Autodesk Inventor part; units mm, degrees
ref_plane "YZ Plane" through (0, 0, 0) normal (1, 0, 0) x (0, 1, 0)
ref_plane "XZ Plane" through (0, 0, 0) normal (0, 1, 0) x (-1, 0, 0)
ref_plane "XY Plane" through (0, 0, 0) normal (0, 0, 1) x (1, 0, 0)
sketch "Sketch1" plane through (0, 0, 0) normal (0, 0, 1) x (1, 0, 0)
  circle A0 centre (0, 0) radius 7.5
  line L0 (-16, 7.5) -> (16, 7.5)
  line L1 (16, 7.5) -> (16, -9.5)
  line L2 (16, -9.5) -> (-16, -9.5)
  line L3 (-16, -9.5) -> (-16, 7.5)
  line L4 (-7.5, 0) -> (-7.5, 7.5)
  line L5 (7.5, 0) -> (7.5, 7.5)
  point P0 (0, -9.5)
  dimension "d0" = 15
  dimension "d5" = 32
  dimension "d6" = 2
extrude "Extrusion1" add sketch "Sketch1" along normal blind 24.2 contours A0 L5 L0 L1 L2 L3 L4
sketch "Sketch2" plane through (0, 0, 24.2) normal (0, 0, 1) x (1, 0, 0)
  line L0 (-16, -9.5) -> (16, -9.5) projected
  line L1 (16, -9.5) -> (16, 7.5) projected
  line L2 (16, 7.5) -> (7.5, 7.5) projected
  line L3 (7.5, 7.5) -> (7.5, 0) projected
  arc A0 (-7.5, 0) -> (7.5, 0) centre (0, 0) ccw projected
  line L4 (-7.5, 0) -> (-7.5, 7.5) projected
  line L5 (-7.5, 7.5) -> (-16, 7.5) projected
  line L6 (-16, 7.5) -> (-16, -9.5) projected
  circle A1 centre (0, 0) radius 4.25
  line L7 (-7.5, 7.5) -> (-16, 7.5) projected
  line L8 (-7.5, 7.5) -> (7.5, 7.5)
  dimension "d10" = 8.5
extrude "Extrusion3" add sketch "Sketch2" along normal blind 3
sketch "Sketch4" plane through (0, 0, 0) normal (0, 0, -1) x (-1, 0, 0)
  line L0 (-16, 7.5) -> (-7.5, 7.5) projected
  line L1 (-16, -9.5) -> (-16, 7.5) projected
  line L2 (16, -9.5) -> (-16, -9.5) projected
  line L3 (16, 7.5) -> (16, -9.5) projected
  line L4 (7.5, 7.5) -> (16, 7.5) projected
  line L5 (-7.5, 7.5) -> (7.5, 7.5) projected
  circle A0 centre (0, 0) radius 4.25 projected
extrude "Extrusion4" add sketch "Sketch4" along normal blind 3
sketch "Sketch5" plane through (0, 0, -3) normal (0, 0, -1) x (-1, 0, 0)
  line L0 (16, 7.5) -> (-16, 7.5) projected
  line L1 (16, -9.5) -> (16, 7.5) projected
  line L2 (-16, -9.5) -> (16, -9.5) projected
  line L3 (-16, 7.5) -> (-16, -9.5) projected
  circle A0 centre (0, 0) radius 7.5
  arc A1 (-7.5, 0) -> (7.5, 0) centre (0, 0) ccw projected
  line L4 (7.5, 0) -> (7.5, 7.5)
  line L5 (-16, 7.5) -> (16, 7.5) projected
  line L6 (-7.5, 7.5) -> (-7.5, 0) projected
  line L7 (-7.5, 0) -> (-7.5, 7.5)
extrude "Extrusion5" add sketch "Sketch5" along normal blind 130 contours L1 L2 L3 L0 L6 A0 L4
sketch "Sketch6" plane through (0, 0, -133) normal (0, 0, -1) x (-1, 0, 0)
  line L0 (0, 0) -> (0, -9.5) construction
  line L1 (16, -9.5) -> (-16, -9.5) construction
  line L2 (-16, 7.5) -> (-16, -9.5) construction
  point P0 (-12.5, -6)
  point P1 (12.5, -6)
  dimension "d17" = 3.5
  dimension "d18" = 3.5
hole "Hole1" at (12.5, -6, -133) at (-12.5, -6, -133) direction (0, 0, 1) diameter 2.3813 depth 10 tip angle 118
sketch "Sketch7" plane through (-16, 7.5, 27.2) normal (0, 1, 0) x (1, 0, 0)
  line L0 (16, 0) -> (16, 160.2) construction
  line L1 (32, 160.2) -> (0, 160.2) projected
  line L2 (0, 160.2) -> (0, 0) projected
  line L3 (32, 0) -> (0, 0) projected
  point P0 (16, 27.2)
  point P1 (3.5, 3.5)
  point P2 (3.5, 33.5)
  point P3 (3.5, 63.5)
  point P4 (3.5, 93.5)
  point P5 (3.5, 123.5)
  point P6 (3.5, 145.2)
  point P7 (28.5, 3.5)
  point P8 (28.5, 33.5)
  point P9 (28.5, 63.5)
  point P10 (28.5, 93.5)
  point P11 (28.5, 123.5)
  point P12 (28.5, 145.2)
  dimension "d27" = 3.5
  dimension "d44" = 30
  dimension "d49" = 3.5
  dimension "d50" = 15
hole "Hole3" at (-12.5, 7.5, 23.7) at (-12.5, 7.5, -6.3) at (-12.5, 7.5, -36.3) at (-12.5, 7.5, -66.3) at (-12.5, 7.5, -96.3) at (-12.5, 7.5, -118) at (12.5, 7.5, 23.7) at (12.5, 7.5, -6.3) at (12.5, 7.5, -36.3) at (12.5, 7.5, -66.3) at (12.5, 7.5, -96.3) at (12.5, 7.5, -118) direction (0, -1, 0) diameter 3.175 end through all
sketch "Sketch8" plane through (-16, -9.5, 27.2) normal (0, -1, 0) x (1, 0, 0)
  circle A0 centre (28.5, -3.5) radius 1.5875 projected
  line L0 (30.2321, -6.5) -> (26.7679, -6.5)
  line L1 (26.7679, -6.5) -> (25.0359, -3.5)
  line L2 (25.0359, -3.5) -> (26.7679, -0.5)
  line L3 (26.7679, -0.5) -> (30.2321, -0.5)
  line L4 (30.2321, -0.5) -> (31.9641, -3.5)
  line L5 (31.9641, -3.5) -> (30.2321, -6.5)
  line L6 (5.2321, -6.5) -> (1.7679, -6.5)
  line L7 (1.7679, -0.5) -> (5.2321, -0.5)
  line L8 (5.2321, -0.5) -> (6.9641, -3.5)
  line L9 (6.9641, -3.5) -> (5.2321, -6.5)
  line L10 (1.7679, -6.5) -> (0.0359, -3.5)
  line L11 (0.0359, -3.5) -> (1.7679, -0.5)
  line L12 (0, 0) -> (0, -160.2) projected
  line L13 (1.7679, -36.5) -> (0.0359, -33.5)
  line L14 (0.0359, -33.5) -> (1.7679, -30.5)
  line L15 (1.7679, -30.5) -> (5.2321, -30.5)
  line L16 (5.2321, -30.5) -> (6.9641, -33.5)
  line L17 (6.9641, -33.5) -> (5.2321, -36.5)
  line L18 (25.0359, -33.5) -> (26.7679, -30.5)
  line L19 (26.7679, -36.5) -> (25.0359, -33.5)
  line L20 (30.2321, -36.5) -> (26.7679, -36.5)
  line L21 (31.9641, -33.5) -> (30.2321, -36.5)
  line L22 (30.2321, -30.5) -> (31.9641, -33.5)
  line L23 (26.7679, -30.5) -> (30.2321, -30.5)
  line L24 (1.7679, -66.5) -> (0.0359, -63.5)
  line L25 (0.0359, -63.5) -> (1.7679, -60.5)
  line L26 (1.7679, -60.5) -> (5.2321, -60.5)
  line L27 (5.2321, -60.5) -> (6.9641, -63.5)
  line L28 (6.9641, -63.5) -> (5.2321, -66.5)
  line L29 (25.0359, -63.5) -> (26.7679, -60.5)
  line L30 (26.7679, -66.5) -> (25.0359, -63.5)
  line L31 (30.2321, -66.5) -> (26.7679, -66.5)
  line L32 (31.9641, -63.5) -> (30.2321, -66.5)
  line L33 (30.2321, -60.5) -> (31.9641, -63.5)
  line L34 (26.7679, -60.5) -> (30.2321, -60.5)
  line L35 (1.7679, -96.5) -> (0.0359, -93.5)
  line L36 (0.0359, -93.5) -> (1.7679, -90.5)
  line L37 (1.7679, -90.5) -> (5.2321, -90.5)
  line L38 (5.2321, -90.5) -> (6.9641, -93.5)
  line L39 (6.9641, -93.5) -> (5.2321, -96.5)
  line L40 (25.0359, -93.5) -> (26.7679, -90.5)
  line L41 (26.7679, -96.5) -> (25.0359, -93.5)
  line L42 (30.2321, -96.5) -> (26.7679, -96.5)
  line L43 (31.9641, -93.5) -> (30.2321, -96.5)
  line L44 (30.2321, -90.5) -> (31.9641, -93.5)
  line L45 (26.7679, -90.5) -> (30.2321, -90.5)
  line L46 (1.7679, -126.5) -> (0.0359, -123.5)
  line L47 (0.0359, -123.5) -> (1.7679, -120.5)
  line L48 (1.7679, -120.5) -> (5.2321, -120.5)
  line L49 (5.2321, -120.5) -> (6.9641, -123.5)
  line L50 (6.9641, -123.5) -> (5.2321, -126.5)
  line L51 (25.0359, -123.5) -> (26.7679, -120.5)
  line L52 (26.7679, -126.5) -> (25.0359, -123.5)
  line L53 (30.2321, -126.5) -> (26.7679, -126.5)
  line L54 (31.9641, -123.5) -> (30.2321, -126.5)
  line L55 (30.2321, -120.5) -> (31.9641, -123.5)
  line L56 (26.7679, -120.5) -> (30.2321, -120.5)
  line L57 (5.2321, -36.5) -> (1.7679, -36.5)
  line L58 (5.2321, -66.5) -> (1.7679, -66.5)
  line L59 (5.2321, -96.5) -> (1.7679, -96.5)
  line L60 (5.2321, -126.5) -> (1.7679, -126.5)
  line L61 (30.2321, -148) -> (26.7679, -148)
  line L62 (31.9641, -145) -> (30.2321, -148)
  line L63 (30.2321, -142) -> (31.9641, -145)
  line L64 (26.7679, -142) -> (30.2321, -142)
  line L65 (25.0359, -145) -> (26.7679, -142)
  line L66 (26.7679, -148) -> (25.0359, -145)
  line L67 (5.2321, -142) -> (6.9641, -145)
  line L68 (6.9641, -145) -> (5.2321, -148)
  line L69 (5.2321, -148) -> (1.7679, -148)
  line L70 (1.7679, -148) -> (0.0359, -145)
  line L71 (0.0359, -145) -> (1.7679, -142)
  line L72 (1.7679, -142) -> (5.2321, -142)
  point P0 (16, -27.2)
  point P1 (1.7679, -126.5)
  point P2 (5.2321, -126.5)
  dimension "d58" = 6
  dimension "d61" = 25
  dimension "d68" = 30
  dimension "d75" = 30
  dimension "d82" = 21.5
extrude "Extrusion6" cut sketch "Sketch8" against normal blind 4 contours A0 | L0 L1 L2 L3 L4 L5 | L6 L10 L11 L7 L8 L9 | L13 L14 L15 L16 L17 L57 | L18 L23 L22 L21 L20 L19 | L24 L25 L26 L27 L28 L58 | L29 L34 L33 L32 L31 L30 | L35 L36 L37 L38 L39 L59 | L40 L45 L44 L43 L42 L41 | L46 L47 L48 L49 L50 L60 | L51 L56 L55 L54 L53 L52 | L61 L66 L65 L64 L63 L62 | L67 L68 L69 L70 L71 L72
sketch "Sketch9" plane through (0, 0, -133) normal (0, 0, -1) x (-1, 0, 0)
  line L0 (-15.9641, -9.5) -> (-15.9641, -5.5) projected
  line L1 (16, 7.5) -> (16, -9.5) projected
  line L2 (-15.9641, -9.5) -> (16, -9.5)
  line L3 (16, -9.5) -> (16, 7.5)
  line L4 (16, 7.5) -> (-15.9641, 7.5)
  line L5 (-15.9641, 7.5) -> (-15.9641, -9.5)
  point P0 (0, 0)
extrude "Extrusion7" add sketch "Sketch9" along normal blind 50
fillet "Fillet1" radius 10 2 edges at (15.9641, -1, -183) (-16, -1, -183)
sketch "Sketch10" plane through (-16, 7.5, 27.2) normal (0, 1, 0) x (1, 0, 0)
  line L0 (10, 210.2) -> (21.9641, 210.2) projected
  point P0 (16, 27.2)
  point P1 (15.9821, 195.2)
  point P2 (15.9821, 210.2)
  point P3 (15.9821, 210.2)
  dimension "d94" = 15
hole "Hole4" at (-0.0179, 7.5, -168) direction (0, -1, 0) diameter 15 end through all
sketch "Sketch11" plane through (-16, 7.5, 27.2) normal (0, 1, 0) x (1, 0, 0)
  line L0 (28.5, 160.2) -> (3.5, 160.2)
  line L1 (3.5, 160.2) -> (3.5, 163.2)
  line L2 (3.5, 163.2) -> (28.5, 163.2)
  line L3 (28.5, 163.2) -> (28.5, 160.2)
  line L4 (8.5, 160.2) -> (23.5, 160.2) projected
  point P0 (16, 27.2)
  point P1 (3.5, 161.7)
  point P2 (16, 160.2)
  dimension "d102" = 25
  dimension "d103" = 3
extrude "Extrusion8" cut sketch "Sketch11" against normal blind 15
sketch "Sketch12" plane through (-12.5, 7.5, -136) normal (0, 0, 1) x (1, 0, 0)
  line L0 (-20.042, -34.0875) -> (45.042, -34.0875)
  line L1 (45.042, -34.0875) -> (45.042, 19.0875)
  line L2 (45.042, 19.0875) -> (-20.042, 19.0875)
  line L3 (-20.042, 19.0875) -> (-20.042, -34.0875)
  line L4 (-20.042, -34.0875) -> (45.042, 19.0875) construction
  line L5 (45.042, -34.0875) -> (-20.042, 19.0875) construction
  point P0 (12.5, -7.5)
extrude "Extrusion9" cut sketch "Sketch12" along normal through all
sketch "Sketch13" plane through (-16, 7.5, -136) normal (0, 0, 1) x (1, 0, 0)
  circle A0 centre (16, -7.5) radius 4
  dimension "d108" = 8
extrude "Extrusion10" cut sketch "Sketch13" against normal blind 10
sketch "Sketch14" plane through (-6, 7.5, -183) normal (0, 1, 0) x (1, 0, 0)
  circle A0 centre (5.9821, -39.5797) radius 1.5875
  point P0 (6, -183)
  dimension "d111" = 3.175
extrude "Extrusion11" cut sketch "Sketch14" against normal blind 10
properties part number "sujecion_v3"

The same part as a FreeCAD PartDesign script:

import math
import FreeCAD as App
import Part
import Sketcher

V = App.Vector
Q = App.Units.Quantity


def edges_at(feature, points):
    """Names of the edges that pass closest to the given points."""
    edges = feature.Shape.Edges
    near = lambda p: min(range(len(edges)), key=lambda i: edges[i].distToShape(Part.Vertex(*p))[0])
    return sorted({f"Edge{near(p) + 1}" for p in points})

doc = App.newDocument("Part")
body = doc.addObject("PartDesign::Body", "Body")

sketch1 = doc.addObject("Sketcher::SketchObject", "Sketch")
body.addObject(sketch1)
sketch1.AttachmentSupport = (doc.XY_Plane, [""])
sketch1.MapMode = "FlatFace"
sketch1.addGeometry([
    Part.ArcOfCircle(Part.Circle(V(0, 0, 0), V(0, 0, 1), 7.5), math.radians(180), math.radians(360)),
    Part.LineSegment(V(-7.5, 0, 0), V(-7.5, 7.5, 0)),
    Part.LineSegment(V(-7.5, 7.5, 0), V(-16, 7.5, 0)),
    Part.LineSegment(V(-16, 7.5, 0), V(-16, -9.5, 0)),
    Part.LineSegment(V(-16, -9.5, 0), V(16, -9.5, 0)),
    Part.LineSegment(V(16, -9.5, 0), V(16, 7.5, 0)),
    Part.LineSegment(V(16, 7.5, 0), V(7.5, 7.5, 0)),
    Part.LineSegment(V(7.5, 7.5, 0), V(7.5, 0, 0)),
], False)
sketch1.addConstraint([
    Sketcher.Constraint("Tangent", 0, 1, 1, 1),
    Sketcher.Constraint("Coincident", 1, 2, 2, 1),
    Sketcher.Constraint("Coincident", 2, 2, 3, 1),
    Sketcher.Constraint("Coincident", 3, 2, 4, 1),
    Sketcher.Constraint("Coincident", 4, 2, 5, 1),
    Sketcher.Constraint("Coincident", 5, 2, 6, 1),
    Sketcher.Constraint("Coincident", 6, 2, 7, 1),
    Sketcher.Constraint("Tangent", 7, 2, 0, 2),
    Sketcher.Constraint("Vertical", 1),
    Sketcher.Constraint("Horizontal", 2),
    Sketcher.Constraint("Vertical", 3),
    Sketcher.Constraint("Horizontal", 4),
    Sketcher.Constraint("Vertical", 5),
    Sketcher.Constraint("Horizontal", 6),
    Sketcher.Constraint("Vertical", 7),
    Sketcher.Constraint("Coincident", 0, 3, -1, 1),
    Sketcher.Constraint("Symmetric", 2, 2, 5, 2, -2),
    Sketcher.Constraint("Radius", 0, 7.5),
    Sketcher.Constraint("DistanceX", 4, 1, 4, 2, 32.0),
    Sketcher.Constraint("DistanceY", 3, 2, 3, 1, 17.0),
    Sketcher.Constraint("DistanceY", 1, 1, 1, 2, 7.5),
])
pad1 = doc.addObject("PartDesign::Pad", "Pad")
body.addObject(pad1)
pad1.Profile = sketch1
pad1.Length = 24.2

sketch2 = doc.addObject("Sketcher::SketchObject", "Sketch001")
body.addObject(sketch2)
sketch2.AttachmentSupport = (doc.XY_Plane, [""])
sketch2.MapMode = "FlatFace"
sketch2.AttachmentOffset = App.Placement(V(0, 0, 24.2), App.Rotation())
sketch2.addGeometry([
    Part.LineSegment(V(-16, 7.5, 0), V(-16, -9.5, 0)),
    Part.LineSegment(V(-16, -9.5, 0), V(16, -9.5, 0)),
    Part.LineSegment(V(16, -9.5, 0), V(16, 7.5, 0)),
    Part.LineSegment(V(16, 7.5, 0), V(-16, 7.5, 0)),
    Part.Circle(V(0, 0, 0), V(0, 0, 1), 4.25),
], False)
sketch2.addConstraint([
    Sketcher.Constraint("Coincident", 0, 2, 1, 1),
    Sketcher.Constraint("Coincident", 1, 2, 2, 1),
    Sketcher.Constraint("Coincident", 2, 2, 3, 1),
    Sketcher.Constraint("Coincident", 3, 2, 0, 1),
    Sketcher.Constraint("Vertical", 0),
    Sketcher.Constraint("Horizontal", 1),
    Sketcher.Constraint("Vertical", 2),
    Sketcher.Constraint("Horizontal", 3),
    Sketcher.Constraint("Coincident", 4, 3, -1, 1),
    Sketcher.Constraint("Diameter", 4, 8.5),
    Sketcher.Constraint("DistanceX", 1, 1, 1, 2, 32.0),
    Sketcher.Constraint("DistanceY", 0, 2, 0, 1, 17.0),
    Sketcher.Constraint("DistanceX", 0, 2, -1, 1, 16.0),
    Sketcher.Constraint("DistanceY", 0, 2, -1, 1, 9.5),
])
pad2 = doc.addObject("PartDesign::Pad", "Pad001")
body.addObject(pad2)
pad2.Profile = sketch2
pad2.Length = 3

sketch3 = doc.addObject("Sketcher::SketchObject", "Sketch002")
body.addObject(sketch3)
sketch3.AttachmentSupport = (doc.XY_Plane, [""])
sketch3.MapMode = "FlatFace"
sketch3.addGeometry([
    Part.LineSegment(V(-16, 7.5, 0), V(16, 7.5, 0)),
    Part.LineSegment(V(16, 7.5, 0), V(16, -9.5, 0)),
    Part.LineSegment(V(16, -9.5, 0), V(-16, -9.5, 0)),
    Part.LineSegment(V(-16, -9.5, 0), V(-16, 7.5, 0)),
    Part.Circle(V(0, 0, 0), V(0, 0, 1), 4.25),
], False)
sketch3.addConstraint([
    Sketcher.Constraint("Coincident", 0, 2, 1, 1),
    Sketcher.Constraint("Coincident", 1, 2, 2, 1),
    Sketcher.Constraint("Coincident", 2, 2, 3, 1),
    Sketcher.Constraint("Coincident", 3, 2, 0, 1),
    Sketcher.Constraint("Horizontal", 0),
    Sketcher.Constraint("Vertical", 1),
    Sketcher.Constraint("Horizontal", 2),
    Sketcher.Constraint("Vertical", 3),
    Sketcher.Constraint("Coincident", 4, 3, -1, 1),
    Sketcher.Constraint("Diameter", 4, 8.5),
    Sketcher.Constraint("DistanceX", 0, 1, 0, 2, 32.0),
    Sketcher.Constraint("DistanceY", 1, 2, 1, 1, 17.0),
    Sketcher.Constraint("DistanceX", -1, 1, 0, 2, 16.0),
    Sketcher.Constraint("DistanceY", -1, 1, 0, 2, 7.5),
])
pad3 = doc.addObject("PartDesign::Pad", "Pad002")
body.addObject(pad3)
pad3.Profile = sketch3
pad3.Length = 3
pad3.Reversed = True

sketch4 = doc.addObject("Sketcher::SketchObject", "Sketch003")
body.addObject(sketch4)
sketch4.AttachmentSupport = (doc.XY_Plane, [""])
sketch4.MapMode = "FlatFace"
sketch4.AttachmentOffset = App.Placement(V(0, 0, -3), App.Rotation())
sketch4.addGeometry([
    Part.LineSegment(V(-16, -9.5, 0), V(-16, 7.5, 0)),
    Part.LineSegment(V(-16, 7.5, 0), V(-7.5, 7.5, 0)),
    Part.LineSegment(V(-7.5, 7.5, 0), V(-7.5, 0, 0)),
    Part.ArcOfCircle(Part.Circle(V(0, 0, 0), V(0, 0, 1), 7.5), math.radians(180), math.radians(360)),
    Part.LineSegment(V(7.5, 0, 0), V(7.5, 7.5, 0)),
    Part.LineSegment(V(7.5, 7.5, 0), V(16, 7.5, 0)),
    Part.LineSegment(V(16, 7.5, 0), V(16, -9.5, 0)),
    Part.LineSegment(V(16, -9.5, 0), V(-16, -9.5, 0)),
], False)
sketch4.addConstraint([
    Sketcher.Constraint("Coincident", 0, 2, 1, 1),
    Sketcher.Constraint("Coincident", 1, 2, 2, 1),
    Sketcher.Constraint("Tangent", 2, 2, 3, 1),
    Sketcher.Constraint("Tangent", 3, 2, 4, 1),
    Sketcher.Constraint("Coincident", 4, 2, 5, 1),
    Sketcher.Constraint("Coincident", 5, 2, 6, 1),
    Sketcher.Constraint("Coincident", 6, 2, 7, 1),
    Sketcher.Constraint("Coincident", 7, 2, 0, 1),
    Sketcher.Constraint("Vertical", 0),
    Sketcher.Constraint("Horizontal", 1),
    Sketcher.Constraint("Vertical", 2),
    Sketcher.Constraint("Vertical", 4),
    Sketcher.Constraint("Horizontal", 5),
    Sketcher.Constraint("Vertical", 6),
    Sketcher.Constraint("Horizontal", 7),
    Sketcher.Constraint("Coincident", 3, 3, -1, 1),
    Sketcher.Constraint("Symmetric", 0, 2, 5, 2, -2),
    Sketcher.Constraint("Radius", 3, 7.5),
    Sketcher.Constraint("DistanceX", 7, 2, 7, 1, 32.0),
    Sketcher.Constraint("DistanceY", 0, 1, 0, 2, 17.0),
    Sketcher.Constraint("DistanceY", 2, 2, 2, 1, 7.5),
])
pad4 = doc.addObject("PartDesign::Pad", "Pad003")
body.addObject(pad4)
pad4.Profile = sketch4
pad4.Length = 130
pad4.Reversed = True

sketch5 = doc.addObject("Sketcher::SketchObject", "Sketch004")
body.addObject(sketch5)
sketch5.AttachmentSupport = (doc.XY_Plane, [""])
sketch5.MapMode = "FlatFace"
sketch5.AttachmentOffset = App.Placement(V(0, 0, -133), App.Rotation())
sketch5.addGeometry([
    Part.Circle(V(12.5, -6, 0), V(0, 0, 1), 1.19065),
    Part.Circle(V(-12.5, -6, 0), V(0, 0, 1), 1.19065),
], False)
sketch5.addConstraint([
    Sketcher.Constraint("Equal", 0, 1),
    Sketcher.Constraint("Symmetric", 0, 3, 1, 3, -2),
    Sketcher.Constraint("DistanceY", 0, 3, -1, 1, 6.0),
    Sketcher.Constraint("DistanceX", 1, 3, 0, 3, 25.0),
    Sketcher.Constraint("Diameter", 0, 2.3813),
])
doc.recompute()
hole = doc.addObject("PartDesign::Hole", "Hole")
body.addObject(hole)
hole.Profile = sketch5
hole.ThreadType = "None"
hole.Diameter = 2.3813
hole.DepthType = "Dimension"
hole.Depth = 10
hole.DrillPoint = "Angled"
hole.DrillPointAngle = 118
hole.Reversed = True

sketch6 = doc.addObject("Sketcher::SketchObject", "Sketch005")
body.addObject(sketch6)
sketch6.AttachmentSupport = (doc.XZ_Plane, [""])
sketch6.MapMode = "FlatFace"
sketch6.AttachmentOffset = App.Placement(V(0, 0, -7.5), App.Rotation())
sketch6.addGeometry([
    Part.Circle(V(-12.5, 23.7, 0), V(0, 0, 1), 1.5875),
    Part.Circle(V(-12.5, -6.3, 0), V(0, 0, 1), 1.5875),
    Part.Circle(V(-12.5, -36.3, 0), V(0, 0, 1), 1.5875),
    Part.Circle(V(-12.5, -66.3, 0), V(0, 0, 1), 1.5875),
    Part.Circle(V(-12.5, -96.3, 0), V(0, 0, 1), 1.5875),
    Part.Circle(V(-12.5, -118, 0), V(0, 0, 1), 1.5875),
    Part.Circle(V(12.5, 23.7, 0), V(0, 0, 1), 1.5875),
    Part.Circle(V(12.5, -6.3, 0), V(0, 0, 1), 1.5875),
    Part.Circle(V(12.5, -36.3, 0), V(0, 0, 1), 1.5875),
    Part.Circle(V(12.5, -66.3, 0), V(0, 0, 1), 1.5875),
    Part.Circle(V(12.5, -96.3, 0), V(0, 0, 1), 1.5875),
    Part.Circle(V(12.5, -118, 0), V(0, 0, 1), 1.5875),
], False)
sketch6.addConstraint([
    Sketcher.Constraint("Equal", 0, 1),
    Sketcher.Constraint("Equal", 1, 2),
    Sketcher.Constraint("Equal", 2, 3),
    Sketcher.Constraint("Equal", 3, 4),
    Sketcher.Constraint("Equal", 4, 5),
    Sketcher.Constraint("Equal", 5, 6),
    Sketcher.Constraint("Equal", 6, 7),
    Sketcher.Constraint("Equal", 7, 8),
    Sketcher.Constraint("Equal", 8, 9),
    Sketcher.Constraint("Equal", 9, 10),
    Sketcher.Constraint("Equal", 10, 11),
    Sketcher.Constraint("Symmetric", 0, 3, 6, 3, -2),
    Sketcher.Constraint("Symmetric", 1, 3, 7, 3, -2),
    Sketcher.Constraint("Symmetric", 2, 3, 8, 3, -2),
    Sketcher.Constraint("Symmetric", 3, 3, 9, 3, -2),
    Sketcher.Constraint("Symmetric", 4, 3, 10, 3, -2),
    Sketcher.Constraint("Symmetric", 5, 3, 11, 3, -2),
    Sketcher.Constraint("Vertical", 0, 3, 1, 3),
    Sketcher.Constraint("Vertical", 1, 3, 2, 3),
    Sketcher.Constraint("Vertical", 2, 3, 3, 3),
    Sketcher.Constraint("Vertical", 3, 3, 4, 3),
    Sketcher.Constraint("Vertical", 4, 3, 5, 3),
    Sketcher.Constraint("Diameter", 0, 3.175),
    Sketcher.Constraint("DistanceY", 5, 3, -1, 1, 118.0),
    Sketcher.Constraint("DistanceY", 1, 3, 0, 3, 30.0),
    Sketcher.Constraint("DistanceY", 2, 3, 1, 3, 30.0),
    Sketcher.Constraint("DistanceY", 3, 3, 2, 3, 30.0),
    Sketcher.Constraint("DistanceY", 4, 3, 3, 3, 30.0),
    Sketcher.Constraint("DistanceX", 0, 3, 6, 3, 25.0),
    Sketcher.Constraint("DistanceY", -1, 1, 0, 3, 23.7),
])
doc.recompute()
hole2 = doc.addObject("PartDesign::Hole", "Hole001")
body.addObject(hole2)
hole2.Profile = sketch6
hole2.ThreadType = "None"
hole2.Diameter = 3.175
hole2.DepthType = "ThroughAll"
hole2.Reversed = True

sketch7 = doc.addObject("Sketcher::SketchObject", "Sketch006")
body.addObject(sketch7)
sketch7.AttachmentSupport = (doc.XZ_Plane, [""])
sketch7.MapMode = "FlatFace"
sketch7.AttachmentOffset = App.Placement(V(0, 0, 9.5), App.Rotation())
sketch7.addGeometry([
    Part.LineSegment(V(10.7679, 20.7, 0), V(14.2321, 20.7, 0)),
    Part.LineSegment(V(14.2321, 20.7, 0), V(15.9641, 23.7, 0)),
    Part.LineSegment(V(15.9641, 23.7, 0), V(14.2321, 26.7, 0)),
    Part.LineSegment(V(14.2321, 26.7, 0), V(10.7679, 26.7, 0)),
    Part.LineSegment(V(10.7679, 26.7, 0), V(9.0359, 23.7, 0)),
    Part.LineSegment(V(9.0359, 23.7, 0), V(10.7679, 20.7, 0)),
    Part.LineSegment(V(-14.2321, 20.7, 0), V(-10.7679, 20.7, 0)),
    Part.LineSegment(V(-10.7679, 20.7, 0), V(-9.0359, 23.7, 0)),
    Part.LineSegment(V(-9.0359, 23.7, 0), V(-10.7679, 26.7, 0)),
    Part.LineSegment(V(-10.7679, 26.7, 0), V(-14.2321, 26.7, 0)),
    Part.LineSegment(V(-14.2321, 26.7, 0), V(-15.9641, 23.7, 0)),
    Part.LineSegment(V(-15.9641, 23.7, 0), V(-14.2321, 20.7, 0)),
    Part.LineSegment(V(-15.9641, -6.3, 0), V(-14.2321, -9.3, 0)),
    Part.LineSegment(V(-14.2321, -9.3, 0), V(-10.7679, -9.3, 0)),
    Part.LineSegment(V(-10.7679, -9.3, 0), V(-9.0359, -6.3, 0)),
    Part.LineSegment(V(-9.0359, -6.3, 0), V(-10.7679, -3.3, 0)),
    Part.LineSegment(V(-10.7679, -3.3, 0), V(-14.2321, -3.3, 0)),
    Part.LineSegment(V(-14.2321, -3.3, 0), V(-15.9641, -6.3, 0)),
    Part.LineSegment(V(10.7679, -3.3, 0), V(9.0359, -6.3, 0)),
    Part.LineSegment(V(9.0359, -6.3, 0), V(10.7679, -9.3, 0)),
    Part.LineSegment(V(10.7679, -9.3, 0), V(14.2321, -9.3, 0)),
    Part.LineSegment(V(14.2321, -9.3, 0), V(15.9641, -6.3, 0)),
    Part.LineSegment(V(15.9641, -6.3, 0), V(14.2321, -3.3, 0)),
    Part.LineSegment(V(14.2321, -3.3, 0), V(10.7679, -3.3, 0)),
    Part.LineSegment(V(-15.9641, -36.3, 0), V(-14.2321, -39.3, 0)),
    Part.LineSegment(V(-14.2321, -39.3, 0), V(-10.7679, -39.3, 0)),
    Part.LineSegment(V(-10.7679, -39.3, 0), V(-9.0359, -36.3, 0)),
    Part.LineSegment(V(-9.0359, -36.3, 0), V(-10.7679, -33.3, 0)),
    Part.LineSegment(V(-10.7679, -33.3, 0), V(-14.2321, -33.3, 0)),
    Part.LineSegment(V(-14.2321, -33.3, 0), V(-15.9641, -36.3, 0)),
    Part.LineSegment(V(10.7679, -33.3, 0), V(9.0359, -36.3, 0)),
    Part.LineSegment(V(9.0359, -36.3, 0), V(10.7679, -39.3, 0)),
    Part.LineSegment(V(10.7679, -39.3, 0), V(14.2321, -39.3, 0)),
    Part.LineSegment(V(14.2321, -39.3, 0), V(15.9641, -36.3, 0)),
    Part.LineSegment(V(15.9641, -36.3, 0), V(14.2321, -33.3, 0)),
    Part.LineSegment(V(14.2321, -33.3, 0), V(10.7679, -33.3, 0)),
    Part.LineSegment(V(-15.9641, -66.3, 0), V(-14.2321, -69.3, 0)),
    Part.LineSegment(V(-14.2321, -69.3, 0), V(-10.7679, -69.3, 0)),
    Part.LineSegment(V(-10.7679, -69.3, 0), V(-9.0359, -66.3, 0)),
    Part.LineSegment(V(-9.0359, -66.3, 0), V(-10.7679, -63.3, 0)),
    Part.LineSegment(V(-10.7679, -63.3, 0), V(-14.2321, -63.3, 0)),
    Part.LineSegment(V(-14.2321, -63.3, 0), V(-15.9641, -66.3, 0)),
    Part.LineSegment(V(10.7679, -63.3, 0), V(9.0359, -66.3, 0)),
    Part.LineSegment(V(9.0359, -66.3, 0), V(10.7679, -69.3, 0)),
    Part.LineSegment(V(10.7679, -69.3, 0), V(14.2321, -69.3, 0)),
    Part.LineSegment(V(14.2321, -69.3, 0), V(15.9641, -66.3, 0)),
    Part.LineSegment(V(15.9641, -66.3, 0), V(14.2321, -63.3, 0)),
    Part.LineSegment(V(14.2321, -63.3, 0), V(10.7679, -63.3, 0)),
    Part.LineSegment(V(-15.9641, -96.3, 0), V(-14.2321, -99.3, 0)),
    Part.LineSegment(V(-14.2321, -99.3, 0), V(-10.7679, -99.3, 0)),
    Part.LineSegment(V(-10.7679, -99.3, 0), V(-9.0359, -96.3, 0)),
    Part.LineSegment(V(-9.0359, -96.3, 0), V(-10.7679, -93.3, 0)),
    Part.LineSegment(V(-10.7679, -93.3, 0), V(-14.2321, -93.3, 0)),
    Part.LineSegment(V(-14.2321, -93.3, 0), V(-15.9641, -96.3, 0)),
    Part.LineSegment(V(10.7679, -93.3, 0), V(9.0359, -96.3, 0)),
    Part.LineSegment(V(9.0359, -96.3, 0), V(10.7679, -99.3, 0)),
    Part.LineSegment(V(10.7679, -99.3, 0), V(14.2321, -99.3, 0)),
    Part.LineSegment(V(14.2321, -99.3, 0), V(15.9641, -96.3, 0)),
    Part.LineSegment(V(15.9641, -96.3, 0), V(14.2321, -93.3, 0)),
    Part.LineSegment(V(14.2321, -93.3, 0), V(10.7679, -93.3, 0)),
    Part.LineSegment(V(10.7679, -120.8, 0), V(14.2321, -120.8, 0)),
    Part.LineSegment(V(14.2321, -120.8, 0), V(15.9641, -117.8, 0)),
    Part.LineSegment(V(15.9641, -117.8, 0), V(14.2321, -114.8, 0)),
    Part.LineSegment(V(14.2321, -114.8, 0), V(10.7679, -114.8, 0)),
    Part.LineSegment(V(10.7679, -114.8, 0), V(9.0359, -117.8, 0)),
    Part.LineSegment(V(9.0359, -117.8, 0), V(10.7679, -120.8, 0)),
    Part.LineSegment(V(-9.0359, -117.8, 0), V(-10.7679, -114.8, 0)),
    Part.LineSegment(V(-10.7679, -114.8, 0), V(-14.2321, -114.8, 0)),
    Part.LineSegment(V(-14.2321, -114.8, 0), V(-15.9641, -117.8, 0)),
    Part.LineSegment(V(-15.9641, -117.8, 0), V(-14.2321, -120.8, 0)),
    Part.LineSegment(V(-14.2321, -120.8, 0), V(-10.7679, -120.8, 0)),
    Part.LineSegment(V(-10.7679, -120.8, 0), V(-9.0359, -117.8, 0)),
], False)
sketch7.addConstraint([
    Sketcher.Constraint("Coincident", 0, 2, 1, 1),
    Sketcher.Constraint("Coincident", 1, 2, 2, 1),
    Sketcher.Constraint("Coincident", 2, 2, 3, 1),
    Sketcher.Constraint("Coincident", 3, 2, 4, 1),
    Sketcher.Constraint("Coincident", 4, 2, 5, 1),
    Sketcher.Constraint("Coincident", 5, 2, 0, 1),
    Sketcher.Constraint("Coincident", 6, 2, 7, 1),
    Sketcher.Constraint("Coincident", 7, 2, 8, 1),
    Sketcher.Constraint("Coincident", 8, 2, 9, 1),
    Sketcher.Constraint("Coincident", 9, 2, 10, 1),
    Sketcher.Constraint("Coincident", 10, 2, 11, 1),
    Sketcher.Constraint("Coincident", 11, 2, 6, 1),
    Sketcher.Constraint("Coincident", 12, 2, 13, 1),
    Sketcher.Constraint("Coincident", 13, 2, 14, 1),
    Sketcher.Constraint("Coincident", 14, 2, 15, 1),
    Sketcher.Constraint("Coincident", 15, 2, 16, 1),
    Sketcher.Constraint("Coincident", 16, 2, 17, 1),
    Sketcher.Constraint("Coincident", 17, 2, 12, 1),
    Sketcher.Constraint("Coincident", 18, 2, 19, 1),
    Sketcher.Constraint("Coincident", 19, 2, 20, 1),
    Sketcher.Constraint("Coincident", 20, 2, 21, 1),
    Sketcher.Constraint("Coincident", 21, 2, 22, 1),
    Sketcher.Constraint("Coincident", 22, 2, 23, 1),
    Sketcher.Constraint("Coincident", 23, 2, 18, 1),
    Sketcher.Constraint("Coincident", 24, 2, 25, 1),
    Sketcher.Constraint("Coincident", 25, 2, 26, 1),
    Sketcher.Constraint("Coincident", 26, 2, 27, 1),
    Sketcher.Constraint("Coincident", 27, 2, 28, 1),
    Sketcher.Constraint("Coincident", 28, 2, 29, 1),
    Sketcher.Constraint("Coincident", 29, 2, 24, 1),
    Sketcher.Constraint("Coincident", 30, 2, 31, 1),
    Sketcher.Constraint("Coincident", 31, 2, 32, 1),
    Sketcher.Constraint("Coincident", 32, 2, 33, 1),
    Sketcher.Constraint("Coincident", 33, 2, 34, 1),
    Sketcher.Constraint("Coincident", 34, 2, 35, 1),
    Sketcher.Constraint("Coincident", 35, 2, 30, 1),
    Sketcher.Constraint("Coincident", 36, 2, 37, 1),
    Sketcher.Constraint("Coincident", 37, 2, 38, 1),
    Sketcher.Constraint("Coincident", 38, 2, 39, 1),
    Sketcher.Constraint("Coincident", 39, 2, 40, 1),
    Sketcher.Constraint("Coincident", 40, 2, 41, 1),
    Sketcher.Constraint("Coincident", 41, 2, 36, 1),
    Sketcher.Constraint("Coincident", 42, 2, 43, 1),
    Sketcher.Constraint("Coincident", 43, 2, 44, 1),
    Sketcher.Constraint("Coincident", 44, 2, 45, 1),
    Sketcher.Constraint("Coincident", 45, 2, 46, 1),
    Sketcher.Constraint("Coincident", 46, 2, 47, 1),
    Sketcher.Constraint("Coincident", 47, 2, 42, 1),
    Sketcher.Constraint("Coincident", 48, 2, 49, 1),
    Sketcher.Constraint("Coincident", 49, 2, 50, 1),
    Sketcher.Constraint("Coincident", 50, 2, 51, 1),
    Sketcher.Constraint("Coincident", 51, 2, 52, 1),
    Sketcher.Constraint("Coincident", 52, 2, 53, 1),
    Sketcher.Constraint("Coincident", 53, 2, 48, 1),
    Sketcher.Constraint("Coincident", 54, 2, 55, 1),
    Sketcher.Constraint("Coincident", 55, 2, 56, 1),
    Sketcher.Constraint("Coincident", 56, 2, 57, 1),
    Sketcher.Constraint("Coincident", 57, 2, 58, 1),
    Sketcher.Constraint("Coincident", 58, 2, 59, 1),
    Sketcher.Constraint("Coincident", 59, 2, 54, 1),
    Sketcher.Constraint("Coincident", 60, 2, 61, 1),
    Sketcher.Constraint("Coincident", 61, 2, 62, 1),
    Sketcher.Constraint("Coincident", 62, 2, 63, 1),
    Sketcher.Constraint("Coincident", 63, 2, 64, 1),
    Sketcher.Constraint("Coincident", 64, 2, 65, 1),
    Sketcher.Constraint("Coincident", 65, 2, 60, 1),
    Sketcher.Constraint("Coincident", 66, 2, 67, 1),
    Sketcher.Constraint("Coincident", 67, 2, 68, 1),
    Sketcher.Constraint("Coincident", 68, 2, 69, 1),
    Sketcher.Constraint("Coincident", 69, 2, 70, 1),
    Sketcher.Constraint("Coincident", 70, 2, 71, 1),
    Sketcher.Constraint("Coincident", 71, 2, 66, 1),
    Sketcher.Constraint("Horizontal", 0),
    Sketcher.Constraint("Horizontal", 3),
    Sketcher.Constraint("Horizontal", 6),
    Sketcher.Constraint("Horizontal", 9),
    Sketcher.Constraint("Horizontal", 13),
    Sketcher.Constraint("Horizontal", 16),
    Sketcher.Constraint("Horizontal", 20),
    Sketcher.Constraint("Horizontal", 23),
    Sketcher.Constraint("Horizontal", 25),
    Sketcher.Constraint("Horizontal", 28),
    Sketcher.Constraint("Horizontal", 32),
    Sketcher.Constraint("Horizontal", 35),
    Sketcher.Constraint("Horizontal", 37),
    Sketcher.Constraint("Horizontal", 40),
    Sketcher.Constraint("Horizontal", 44),
    Sketcher.Constraint("Horizontal", 47),
    Sketcher.Constraint("Horizontal", 49),
    Sketcher.Constraint("Horizontal", 52),
    Sketcher.Constraint("Horizontal", 56),
    Sketcher.Constraint("Horizontal", 59),
    Sketcher.Constraint("Horizontal", 60),
    Sketcher.Constraint("Horizontal", 63),
    Sketcher.Constraint("Horizontal", 67),
    Sketcher.Constraint("Horizontal", 70),
    Sketcher.Constraint("Symmetric", 5, 2, 6, 2, -2),
    Sketcher.Constraint("Symmetric", 4, 2, 7, 2, -2),
    Sketcher.Constraint("Symmetric", 3, 2, 8, 2, -2),
    Sketcher.Constraint("Symmetric", 1, 2, 10, 2, -2),
    Sketcher.Constraint("Symmetric", 14, 2, 18, 2, -2),
    Sketcher.Constraint("Symmetric", 13, 2, 19, 2, -2),
    Sketcher.Constraint("Symmetric", 17, 2, 21, 2, -2),
    Sketcher.Constraint("Symmetric", 16, 2, 22, 2, -2),
    Sketcher.Constraint("Symmetric", 26, 2, 30, 2, -2),
    Sketcher.Constraint("Symmetric", 25, 2, 31, 2, -2),
    Sketcher.Constraint("Symmetric", 29, 2, 33, 2, -2),
    Sketcher.Constraint("Symmetric", 28, 2, 34, 2, -2),
    Sketcher.Constraint("Symmetric", 38, 2, 42, 2, -2),
    Sketcher.Constraint("Symmetric", 37, 2, 43, 2, -2),
    Sketcher.Constraint("Symmetric", 41, 2, 45, 2, -2),
    Sketcher.Constraint("Symmetric", 40, 2, 46, 2, -2),
    Sketcher.Constraint("Symmetric", 50, 2, 54, 2, -2),
    Sketcher.Constraint("Symmetric", 49, 2, 55, 2, -2),
    Sketcher.Constraint("Symmetric", 53, 2, 57, 2, -2),
    Sketcher.Constraint("Symmetric", 52, 2, 58, 2, -2),
    Sketcher.Constraint("Symmetric", 63, 2, 66, 2, -2),
    Sketcher.Constraint("Symmetric", 61, 2, 68, 2, -2),
    Sketcher.Constraint("Symmetric", 60, 2, 69, 2, -2),
    Sketcher.Constraint("Symmetric", 64, 2, 71, 2, -2),
    Sketcher.Constraint("Parallel", 1, 4),
    Sketcher.Constraint("Parallel", 2, 5),
    Sketcher.Constraint("Parallel", 4, 7),
    Sketcher.Constraint("Parallel", 7, 10),
    Sketcher.Constraint("Parallel", 8, 11),
    Sketcher.Constraint("Parallel", 11, 12),
    Sketcher.Constraint("Parallel", 10, 14),
    Sketcher.Constraint("Parallel", 12, 15),
    Sketcher.Constraint("Parallel", 14, 17),
    Sketcher.Constraint("Parallel", 17, 18),
    Sketcher.Constraint("Parallel", 18, 21),
    Sketcher.Constraint("Parallel", 22, 24),
    Sketcher.Constraint("Parallel", 21, 26),
    Sketcher.Constraint("Parallel", 24, 27),
    Sketcher.Constraint("Parallel", 26, 29),
    Sketcher.Constraint("Parallel", 29, 30),
    Sketcher.Constraint("Parallel", 30, 33),
    Sketcher.Constraint("Parallel", 34, 36),
    Sketcher.Constraint("Parallel", 33, 38),
    Sketcher.Constraint("Parallel", 36, 39),
    Sketcher.Constraint("Parallel", 38, 41),
    Sketcher.Constraint("Parallel", 41, 42),
    Sketcher.Constraint("Parallel", 42, 45),
    Sketcher.Constraint("Parallel", 46, 48),
    Sketcher.Constraint("Parallel", 45, 50),
    Sketcher.Constraint("Parallel", 48, 51),
    Sketcher.Constraint("Parallel", 50, 53),
    Sketcher.Constraint("Parallel", 53, 54),
    Sketcher.Constraint("Parallel", 54, 57),
    Sketcher.Constraint("Parallel", 57, 61),
    Sketcher.Constraint("Parallel", 58, 62),
    Sketcher.Constraint("Parallel", 61, 64),
    Sketcher.Constraint("Parallel", 62, 65),
    Sketcher.Constraint("Parallel", 64, 68),
    Sketcher.Constraint("Parallel", 68, 71),
    Sketcher.Constraint("Horizontal", 1, 2, 4, 2),
    Sketcher.Constraint("Horizontal", 14, 2, 17, 2),
    Sketcher.Constraint("Horizontal", 26, 2, 29, 2),
    Sketcher.Constraint("Horizontal", 38, 2, 41, 2),
    Sketcher.Constraint("Horizontal", 50, 2, 53, 2),
    Sketcher.Constraint("Horizontal", 61, 2, 64, 2),
    Sketcher.Constraint("Vertical", 0, 2, 2, 2),
    Sketcher.Constraint("Vertical", 11, 2, 12, 2),
    Sketcher.Constraint("Vertical", 8, 2, 13, 2),
    Sketcher.Constraint("Vertical", 7, 2, 14, 2),
    Sketcher.Constraint("Vertical", 13, 2, 15, 2),
    Sketcher.Constraint("Vertical", 16, 2, 24, 2),
    Sketcher.Constraint("Vertical", 15, 2, 25, 2),
    Sketcher.Constraint("Vertical", 14, 2, 26, 2),
    Sketcher.Constraint("Vertical", 25, 2, 27, 2),
    Sketcher.Constraint("Vertical", 28, 2, 36, 2),
    Sketcher.Constraint("Vertical", 27, 2, 37, 2),
    Sketcher.Constraint("Vertical", 26, 2, 38, 2),
    Sketcher.Constraint("Vertical", 37, 2, 39, 2),
    Sketcher.Constraint("Vertical", 40, 2, 48, 2),
    Sketcher.Constraint("Vertical", 39, 2, 49, 2),
    Sketcher.Constraint("Vertical", 38, 2, 50, 2),
    Sketcher.Constraint("Vertical", 49, 2, 51, 2),
    Sketcher.Constraint("Vertical", 58, 2, 60, 2),
    Sketcher.Constraint("Vertical", 57, 2, 61, 2),
    Sketcher.Constraint("Vertical", 60, 2, 62, 2),
    Sketcher.Constraint("Vertical", 59, 2, 63, 2),
    Sketcher.Constraint("Angle", 1, Q("60.0007 deg")),
    Sketcher.Constraint("DistanceY", -1, 1, 0, 2, 20.7),
    Sketcher.Constraint("DistanceY", -1, 1, 1, 2, 23.7),
    Sketcher.Constraint("DistanceY", 12, 2, -1, 1, 9.3),
    Sketcher.Constraint("DistanceY", 24, 2, -1, 1, 39.3),
    Sketcher.Constraint("DistanceY", 36, 2, -1, 1, 69.3),
    Sketcher.Constraint("DistanceY", 48, 2, -1, 1, 99.3),
    Sketcher.Constraint("DistanceY", 60, 2, -1, 1, 120.8),
    Sketcher.Constraint("DistanceX", 0, 1, 0, 2, 3.4642),
    Sketcher.Constraint("DistanceX", -1, 1, 0, 2, 14.232),
])
pocket1 = doc.addObject("PartDesign::Pocket", "Pocket")
body.addObject(pocket1)
pocket1.Profile = sketch7
pocket1.Length = 4

sketch8 = doc.addObject("Sketcher::SketchObject", "Sketch007")
body.addObject(sketch8)
sketch8.AttachmentSupport = (doc.XY_Plane, [""])
sketch8.MapMode = "FlatFace"
sketch8.AttachmentOffset = App.Placement(V(0, 0, -133), App.Rotation())
sketch8.addGeometry([
    Part.LineSegment(V(15.9641, 7.5, 0), V(15.9641, -9.5, 0)),
    Part.LineSegment(V(15.9641, -9.5, 0), V(-16, -9.5, 0)),
    Part.LineSegment(V(-16, -9.5, 0), V(-16, 7.5, 0)),
    Part.LineSegment(V(-16, 7.5, 0), V(15.9641, 7.5, 0)),
], False)
sketch8.addConstraint([
    Sketcher.Constraint("Coincident", 0, 2, 1, 1),
    Sketcher.Constraint("Coincident", 1, 2, 2, 1),
    Sketcher.Constraint("Coincident", 2, 2, 3, 1),
    Sketcher.Constraint("Coincident", 3, 2, 0, 1),
    Sketcher.Constraint("Vertical", 0),
    Sketcher.Constraint("Horizontal", 1),
    Sketcher.Constraint("Vertical", 2),
    Sketcher.Constraint("Horizontal", 3),
    Sketcher.Constraint("DistanceY", 0, 2, 0, 1, 17.0),
    Sketcher.Constraint("DistanceX", 1, 2, -1, 1, 16.0),
    Sketcher.Constraint("DistanceY", 0, 2, -1, 1, 9.5),
    Sketcher.Constraint("DistanceX", 1, 2, 1, 1, 31.964),
])
pad5 = doc.addObject("PartDesign::Pad", "Pad004")
body.addObject(pad5)
pad5.Profile = sketch8
pad5.Length = 50
pad5.Reversed = True
doc.recompute()

fillet = doc.addObject("PartDesign::Fillet", "Fillet")
body.addObject(fillet)
fillet.Base = (pad5, edges_at(pad5, [(15.964, -1, -183), (-16, -1, -183)]))
fillet.Radius = 10

sketch9 = doc.addObject("Sketcher::SketchObject", "Sketch008")
body.addObject(sketch9)
sketch9.AttachmentSupport = (doc.XZ_Plane, [""])
sketch9.MapMode = "FlatFace"
sketch9.AttachmentOffset = App.Placement(V(0, 0, -7.5), App.Rotation())
sketch9.addGeometry(Part.Circle(V(-0.0179, -168, 0), V(0, 0, 1), 7.5), False)
sketch9.addConstraint([
    Sketcher.Constraint("Diameter", 0, 15.0),
    Sketcher.Constraint("DistanceY", 0, 3, -1, 1, 168.0),
    Sketcher.Constraint("DistanceX", 0, 3, -1, 1, 0.018),
])
doc.recompute()
hole3 = doc.addObject("PartDesign::Hole", "Hole002")
body.addObject(hole3)
hole3.Profile = sketch9
hole3.ThreadType = "None"
hole3.Diameter = 15
hole3.DepthType = "ThroughAll"
hole3.Reversed = True

sketch10 = doc.addObject("Sketcher::SketchObject", "Sketch009")
body.addObject(sketch10)
sketch10.AttachmentSupport = (doc.XZ_Plane, [""])
sketch10.MapMode = "FlatFace"
sketch10.AttachmentOffset = App.Placement(V(0, 0, -7.5), App.Rotation())
sketch10.addGeometry([
    Part.LineSegment(V(-12.5, -133, 0), V(12.5, -133, 0)),
    Part.LineSegment(V(12.5, -133, 0), V(12.5, -136, 0)),
    Part.LineSegment(V(12.5, -136, 0), V(-12.5, -136, 0)),
    Part.LineSegment(V(-12.5, -136, 0), V(-12.5, -133, 0)),
], False)
sketch10.addConstraint([
    Sketcher.Constraint("Coincident", 0, 2, 1, 1),
    Sketcher.Constraint("Coincident", 1, 2, 2, 1),
    Sketcher.Constraint("Coincident", 2, 2, 3, 1),
    Sketcher.Constraint("Coincident", 3, 2, 0, 1),
    Sketcher.Constraint("Horizontal", 0),
    Sketcher.Constraint("Vertical", 1),
    Sketcher.Constraint("Horizontal", 2),
    Sketcher.Constraint("Vertical", 3),
    Sketcher.Constraint("DistanceX", 0, 1, 0, 2, 25.0),
    Sketcher.Constraint("DistanceY", 1, 2, 1, 1, 3.0),
    Sketcher.Constraint("DistanceY", 0, 2, -1, 1, 133.0),
    Sketcher.Constraint("DistanceX", -1, 1, 0, 2, 12.5),
])
pocket2 = doc.addObject("PartDesign::Pocket", "Pocket001")
body.addObject(pocket2)
pocket2.Profile = sketch10
pocket2.Length = 15
pocket2.Reversed = True

sketch11 = doc.addObject("Sketcher::SketchObject", "Sketch010")
body.addObject(sketch11)
sketch11.AttachmentSupport = (doc.XY_Plane, [""])
sketch11.MapMode = "FlatFace"
sketch11.AttachmentOffset = App.Placement(V(0, 0, -136), App.Rotation())
sketch11.addGeometry([
    Part.LineSegment(V(-32.542, 26.5875, 0), V(-32.542, -26.5875, 0)),
    Part.LineSegment(V(-32.542, -26.5875, 0), V(32.542, -26.5875, 0)),
    Part.LineSegment(V(32.542, -26.5875, 0), V(32.542, 26.5875, 0)),
    Part.LineSegment(V(32.542, 26.5875, 0), V(-32.542, 26.5875, 0)),
], False)
sketch11.addConstraint([
    Sketcher.Constraint("Coincident", 0, 2, 1, 1),
    Sketcher.Constraint("Coincident", 1, 2, 2, 1),
    Sketcher.Constraint("Coincident", 2, 2, 3, 1),
    Sketcher.Constraint("Coincident", 3, 2, 0, 1),
    Sketcher.Constraint("Vertical", 0),
    Sketcher.Constraint("Horizontal", 1),
    Sketcher.Constraint("Vertical", 2),
    Sketcher.Constraint("Horizontal", 3),
    Sketcher.Constraint("Symmetric", 0, 2, 2, 2, -1, 1),
    Sketcher.Constraint("DistanceX", 1, 1, 1, 2, 65.084),
    Sketcher.Constraint("DistanceY", 0, 2, 0, 1, 53.175),
])
pocket3 = doc.addObject("PartDesign::Pocket", "Pocket002")
body.addObject(pocket3)
pocket3.Profile = sketch11
pocket3.Type = "ThroughAll"
pocket3.Reversed = True

sketch12 = doc.addObject("Sketcher::SketchObject", "Sketch011")
body.addObject(sketch12)
sketch12.AttachmentSupport = (doc.XY_Plane, [""])
sketch12.MapMode = "FlatFace"
sketch12.AttachmentOffset = App.Placement(V(0, 0, -136), App.Rotation())
sketch12.addGeometry(Part.Circle(V(0, 0, 0), V(0, 0, 1), 4), False)
sketch12.addConstraint([
    Sketcher.Constraint("Coincident", 0, 3, -1, 1),
    Sketcher.Constraint("Diameter", 0, 8.0),
])
pocket4 = doc.addObject("PartDesign::Pocket", "Pocket003")
body.addObject(pocket4)
pocket4.Profile = sketch12
pocket4.Length = 10

sketch13 = doc.addObject("Sketcher::SketchObject", "Sketch012")
body.addObject(sketch13)
sketch13.AttachmentSupport = (doc.XZ_Plane, [""])
sketch13.MapMode = "FlatFace"
sketch13.AttachmentOffset = App.Placement(V(0, 0, -7.5), App.Rotation())
sketch13.addGeometry(Part.Circle(V(-0.0179, -143.4203, 0), V(0, 0, 1), 1.5875), False)
sketch13.addConstraint([
    Sketcher.Constraint("Diameter", 0, 3.175),
    Sketcher.Constraint("DistanceX", 0, 3, -1, 1, 0.018),
    Sketcher.Constraint("DistanceY", 0, 3, -1, 1, 143.4203),
])
pocket5 = doc.addObject("PartDesign::Pocket", "Pocket004")
body.addObject(pocket5)
pocket5.Profile = sketch13
pocket5.Length = 10
pocket5.Reversed = True

doc.recompute()
